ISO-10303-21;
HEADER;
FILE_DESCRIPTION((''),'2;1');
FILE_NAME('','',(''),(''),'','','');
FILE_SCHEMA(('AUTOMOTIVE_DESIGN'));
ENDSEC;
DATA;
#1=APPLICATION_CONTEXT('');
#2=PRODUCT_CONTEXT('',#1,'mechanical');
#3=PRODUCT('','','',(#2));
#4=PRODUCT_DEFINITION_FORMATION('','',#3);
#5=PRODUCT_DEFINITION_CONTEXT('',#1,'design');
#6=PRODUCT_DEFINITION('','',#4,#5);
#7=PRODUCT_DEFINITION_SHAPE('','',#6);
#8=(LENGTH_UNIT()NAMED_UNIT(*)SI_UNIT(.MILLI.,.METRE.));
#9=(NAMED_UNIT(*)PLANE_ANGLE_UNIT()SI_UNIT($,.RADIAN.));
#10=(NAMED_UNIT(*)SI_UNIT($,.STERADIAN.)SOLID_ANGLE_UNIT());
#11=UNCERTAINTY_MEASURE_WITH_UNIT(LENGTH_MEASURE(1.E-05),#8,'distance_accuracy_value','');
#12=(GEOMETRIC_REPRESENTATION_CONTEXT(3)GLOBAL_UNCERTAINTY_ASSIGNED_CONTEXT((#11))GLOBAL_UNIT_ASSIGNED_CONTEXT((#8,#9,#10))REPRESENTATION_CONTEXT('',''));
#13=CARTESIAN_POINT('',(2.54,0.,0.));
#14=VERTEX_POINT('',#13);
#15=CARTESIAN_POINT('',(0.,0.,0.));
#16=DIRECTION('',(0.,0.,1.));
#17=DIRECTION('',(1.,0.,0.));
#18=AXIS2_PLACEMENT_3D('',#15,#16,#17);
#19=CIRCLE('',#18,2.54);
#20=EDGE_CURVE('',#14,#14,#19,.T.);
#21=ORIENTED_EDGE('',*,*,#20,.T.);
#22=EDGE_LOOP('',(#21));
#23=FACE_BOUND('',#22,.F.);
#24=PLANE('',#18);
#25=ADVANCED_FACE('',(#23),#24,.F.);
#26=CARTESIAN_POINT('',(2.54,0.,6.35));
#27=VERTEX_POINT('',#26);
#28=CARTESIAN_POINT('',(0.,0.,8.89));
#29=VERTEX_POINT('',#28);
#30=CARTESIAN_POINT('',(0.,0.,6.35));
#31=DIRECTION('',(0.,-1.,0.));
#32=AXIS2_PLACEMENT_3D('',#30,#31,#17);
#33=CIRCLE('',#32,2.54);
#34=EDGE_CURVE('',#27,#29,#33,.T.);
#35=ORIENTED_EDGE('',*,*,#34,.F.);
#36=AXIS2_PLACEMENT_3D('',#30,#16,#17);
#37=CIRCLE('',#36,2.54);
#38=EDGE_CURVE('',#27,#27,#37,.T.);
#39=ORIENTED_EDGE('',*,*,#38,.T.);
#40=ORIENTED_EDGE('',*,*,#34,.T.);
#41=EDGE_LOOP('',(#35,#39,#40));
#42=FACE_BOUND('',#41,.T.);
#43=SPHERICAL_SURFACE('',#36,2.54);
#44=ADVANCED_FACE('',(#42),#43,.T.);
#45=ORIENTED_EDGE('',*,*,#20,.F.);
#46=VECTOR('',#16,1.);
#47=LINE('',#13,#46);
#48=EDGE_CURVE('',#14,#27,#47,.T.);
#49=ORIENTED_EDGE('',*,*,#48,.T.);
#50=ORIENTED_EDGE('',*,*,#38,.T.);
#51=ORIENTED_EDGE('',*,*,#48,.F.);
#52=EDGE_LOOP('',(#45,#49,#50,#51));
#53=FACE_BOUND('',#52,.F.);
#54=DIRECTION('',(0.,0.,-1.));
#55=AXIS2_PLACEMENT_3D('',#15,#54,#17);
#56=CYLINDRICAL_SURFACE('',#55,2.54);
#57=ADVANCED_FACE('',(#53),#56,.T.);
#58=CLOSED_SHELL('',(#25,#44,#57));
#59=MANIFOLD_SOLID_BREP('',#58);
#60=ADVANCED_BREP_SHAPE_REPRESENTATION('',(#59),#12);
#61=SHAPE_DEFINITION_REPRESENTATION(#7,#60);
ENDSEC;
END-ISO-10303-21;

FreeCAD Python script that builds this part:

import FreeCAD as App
import Part
import Sketcher

V = App.Vector
Q = App.Units.Quantity


def edges_at(feature, points):
    """Names of the edges that pass closest to the given points."""
    edges = feature.Shape.Edges
    near = lambda p: min(range(len(edges)), key=lambda i: edges[i].distToShape(Part.Vertex(*p))[0])
    return sorted({f"Edge{near(p) + 1}" for p in points})

doc = App.newDocument("Part")
body = doc.addObject("PartDesign::Body", "Body")

# Sketch on XY plane
sketch1 = body.newObject("Sketcher::SketchObject", "Sketch")
sketch1.AttachmentSupport = (doc.getObject("XY_Plane"), [""])
sketch1.MapMode = "FlatFace"
sketch1.addGeometry(Part.Circle(V(0, 0, 0), V(0, 0, 1), 2.54), False)
sketch1.addConstraint([
    Sketcher.Constraint("Coincident", 0, 3, -1, 1),
    Sketcher.Constraint("Diameter", 0, Q("0.2 in")),
])
pad1 = body.newObject("PartDesign::Pad", "Pad")
pad1.Profile = sketch1
pad1.Length = Q("0.35 in")
doc.recompute()

fillet = body.newObject("PartDesign::Fillet", "Fillet")
fillet.Base = (pad1, edges_at(pad1, [(-2.54, 0, 8.89)]))
fillet.Radius = Q("0.1 in")

doc.recompute()
